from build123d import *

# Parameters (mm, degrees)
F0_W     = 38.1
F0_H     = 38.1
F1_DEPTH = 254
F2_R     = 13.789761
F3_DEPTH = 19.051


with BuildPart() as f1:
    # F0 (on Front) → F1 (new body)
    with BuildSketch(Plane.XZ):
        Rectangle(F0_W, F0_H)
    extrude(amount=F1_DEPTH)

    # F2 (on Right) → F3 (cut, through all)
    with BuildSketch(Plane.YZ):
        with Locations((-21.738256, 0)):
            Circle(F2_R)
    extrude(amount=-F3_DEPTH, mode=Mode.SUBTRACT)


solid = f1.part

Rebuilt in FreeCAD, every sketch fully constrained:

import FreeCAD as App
import Part
import Sketcher
Q = App.Units.Quantity

doc = App.newDocument("Part")
body = doc.addObject("PartDesign::Body", "Body")

# Sketch on XZ plane
sketch1 = body.newObject("Sketcher::SketchObject", "Sketch")
sketch1.AttachmentSupport = (doc.getObject("XZ_Plane"), [""])
sketch1.MapMode = "FlatFace"
sketch1.addGeometry(Part.LineSegment(App.Vector(-19, 19, 0), App.Vector(-19, -19, 0)), False)
sketch1.addGeometry(Part.LineSegment(App.Vector(-19, -19, 0), App.Vector(19, -19, 0)), False)
sketch1.addGeometry(Part.LineSegment(App.Vector(19, -19, 0), App.Vector(19, 19, 0)), False)
sketch1.addGeometry(Part.LineSegment(App.Vector(19, 19, 0), App.Vector(-19, 19, 0)), False)
sketch1.addConstraint(Sketcher.Constraint("Coincident", 0, 2, 1, 1))
sketch1.addConstraint(Sketcher.Constraint("Coincident", 1, 2, 2, 1))
sketch1.addConstraint(Sketcher.Constraint("Coincident", 2, 2, 3, 1))
sketch1.addConstraint(Sketcher.Constraint("Coincident", 3, 2, 0, 1))
sketch1.addConstraint(Sketcher.Constraint("Vertical", 0))
sketch1.addConstraint(Sketcher.Constraint("Horizontal", 1))
sketch1.addConstraint(Sketcher.Constraint("Vertical", 2))
sketch1.addConstraint(Sketcher.Constraint("Horizontal", 3))
sketch1.addConstraint(Sketcher.Constraint("Symmetric", 0, 2, 2, 2, -1, 1))
sketch1.addConstraint(Sketcher.Constraint("Equal", 3, 0))
sketch1.addConstraint(Sketcher.Constraint("DistanceX", 1, 1, 1, 2, Q("1.5 in")))
pad1 = body.newObject("PartDesign::Pad", "Pad")
pad1.Profile = sketch1
pad1.Length = Q("10 in")

# Sketch on YZ plane
sketch2 = body.newObject("Sketcher::SketchObject", "Sketch001")
sketch2.AttachmentSupport = (doc.getObject("YZ_Plane"), [""])
sketch2.MapMode = "FlatFace"
sketch2.addGeometry(Part.Circle(App.Vector(-22, 0, 0), App.Vector(0, 0, 1), 14), False)
sketch2.addConstraint(Sketcher.Constraint("PointOnObject", 0, 3, -1))
sketch2.addConstraint(Sketcher.Constraint("Diameter", 0, Q("27.579522 mm")))
sketch2.addConstraint(Sketcher.Constraint("DistanceX", 0, 3, -1, 1, Q("21.738256 mm")))
pocket1 = body.newObject("PartDesign::Pocket", "Pocket")
pocket1.Profile = sketch2
pocket1.Type = "ThroughAll"

doc.recompute()
